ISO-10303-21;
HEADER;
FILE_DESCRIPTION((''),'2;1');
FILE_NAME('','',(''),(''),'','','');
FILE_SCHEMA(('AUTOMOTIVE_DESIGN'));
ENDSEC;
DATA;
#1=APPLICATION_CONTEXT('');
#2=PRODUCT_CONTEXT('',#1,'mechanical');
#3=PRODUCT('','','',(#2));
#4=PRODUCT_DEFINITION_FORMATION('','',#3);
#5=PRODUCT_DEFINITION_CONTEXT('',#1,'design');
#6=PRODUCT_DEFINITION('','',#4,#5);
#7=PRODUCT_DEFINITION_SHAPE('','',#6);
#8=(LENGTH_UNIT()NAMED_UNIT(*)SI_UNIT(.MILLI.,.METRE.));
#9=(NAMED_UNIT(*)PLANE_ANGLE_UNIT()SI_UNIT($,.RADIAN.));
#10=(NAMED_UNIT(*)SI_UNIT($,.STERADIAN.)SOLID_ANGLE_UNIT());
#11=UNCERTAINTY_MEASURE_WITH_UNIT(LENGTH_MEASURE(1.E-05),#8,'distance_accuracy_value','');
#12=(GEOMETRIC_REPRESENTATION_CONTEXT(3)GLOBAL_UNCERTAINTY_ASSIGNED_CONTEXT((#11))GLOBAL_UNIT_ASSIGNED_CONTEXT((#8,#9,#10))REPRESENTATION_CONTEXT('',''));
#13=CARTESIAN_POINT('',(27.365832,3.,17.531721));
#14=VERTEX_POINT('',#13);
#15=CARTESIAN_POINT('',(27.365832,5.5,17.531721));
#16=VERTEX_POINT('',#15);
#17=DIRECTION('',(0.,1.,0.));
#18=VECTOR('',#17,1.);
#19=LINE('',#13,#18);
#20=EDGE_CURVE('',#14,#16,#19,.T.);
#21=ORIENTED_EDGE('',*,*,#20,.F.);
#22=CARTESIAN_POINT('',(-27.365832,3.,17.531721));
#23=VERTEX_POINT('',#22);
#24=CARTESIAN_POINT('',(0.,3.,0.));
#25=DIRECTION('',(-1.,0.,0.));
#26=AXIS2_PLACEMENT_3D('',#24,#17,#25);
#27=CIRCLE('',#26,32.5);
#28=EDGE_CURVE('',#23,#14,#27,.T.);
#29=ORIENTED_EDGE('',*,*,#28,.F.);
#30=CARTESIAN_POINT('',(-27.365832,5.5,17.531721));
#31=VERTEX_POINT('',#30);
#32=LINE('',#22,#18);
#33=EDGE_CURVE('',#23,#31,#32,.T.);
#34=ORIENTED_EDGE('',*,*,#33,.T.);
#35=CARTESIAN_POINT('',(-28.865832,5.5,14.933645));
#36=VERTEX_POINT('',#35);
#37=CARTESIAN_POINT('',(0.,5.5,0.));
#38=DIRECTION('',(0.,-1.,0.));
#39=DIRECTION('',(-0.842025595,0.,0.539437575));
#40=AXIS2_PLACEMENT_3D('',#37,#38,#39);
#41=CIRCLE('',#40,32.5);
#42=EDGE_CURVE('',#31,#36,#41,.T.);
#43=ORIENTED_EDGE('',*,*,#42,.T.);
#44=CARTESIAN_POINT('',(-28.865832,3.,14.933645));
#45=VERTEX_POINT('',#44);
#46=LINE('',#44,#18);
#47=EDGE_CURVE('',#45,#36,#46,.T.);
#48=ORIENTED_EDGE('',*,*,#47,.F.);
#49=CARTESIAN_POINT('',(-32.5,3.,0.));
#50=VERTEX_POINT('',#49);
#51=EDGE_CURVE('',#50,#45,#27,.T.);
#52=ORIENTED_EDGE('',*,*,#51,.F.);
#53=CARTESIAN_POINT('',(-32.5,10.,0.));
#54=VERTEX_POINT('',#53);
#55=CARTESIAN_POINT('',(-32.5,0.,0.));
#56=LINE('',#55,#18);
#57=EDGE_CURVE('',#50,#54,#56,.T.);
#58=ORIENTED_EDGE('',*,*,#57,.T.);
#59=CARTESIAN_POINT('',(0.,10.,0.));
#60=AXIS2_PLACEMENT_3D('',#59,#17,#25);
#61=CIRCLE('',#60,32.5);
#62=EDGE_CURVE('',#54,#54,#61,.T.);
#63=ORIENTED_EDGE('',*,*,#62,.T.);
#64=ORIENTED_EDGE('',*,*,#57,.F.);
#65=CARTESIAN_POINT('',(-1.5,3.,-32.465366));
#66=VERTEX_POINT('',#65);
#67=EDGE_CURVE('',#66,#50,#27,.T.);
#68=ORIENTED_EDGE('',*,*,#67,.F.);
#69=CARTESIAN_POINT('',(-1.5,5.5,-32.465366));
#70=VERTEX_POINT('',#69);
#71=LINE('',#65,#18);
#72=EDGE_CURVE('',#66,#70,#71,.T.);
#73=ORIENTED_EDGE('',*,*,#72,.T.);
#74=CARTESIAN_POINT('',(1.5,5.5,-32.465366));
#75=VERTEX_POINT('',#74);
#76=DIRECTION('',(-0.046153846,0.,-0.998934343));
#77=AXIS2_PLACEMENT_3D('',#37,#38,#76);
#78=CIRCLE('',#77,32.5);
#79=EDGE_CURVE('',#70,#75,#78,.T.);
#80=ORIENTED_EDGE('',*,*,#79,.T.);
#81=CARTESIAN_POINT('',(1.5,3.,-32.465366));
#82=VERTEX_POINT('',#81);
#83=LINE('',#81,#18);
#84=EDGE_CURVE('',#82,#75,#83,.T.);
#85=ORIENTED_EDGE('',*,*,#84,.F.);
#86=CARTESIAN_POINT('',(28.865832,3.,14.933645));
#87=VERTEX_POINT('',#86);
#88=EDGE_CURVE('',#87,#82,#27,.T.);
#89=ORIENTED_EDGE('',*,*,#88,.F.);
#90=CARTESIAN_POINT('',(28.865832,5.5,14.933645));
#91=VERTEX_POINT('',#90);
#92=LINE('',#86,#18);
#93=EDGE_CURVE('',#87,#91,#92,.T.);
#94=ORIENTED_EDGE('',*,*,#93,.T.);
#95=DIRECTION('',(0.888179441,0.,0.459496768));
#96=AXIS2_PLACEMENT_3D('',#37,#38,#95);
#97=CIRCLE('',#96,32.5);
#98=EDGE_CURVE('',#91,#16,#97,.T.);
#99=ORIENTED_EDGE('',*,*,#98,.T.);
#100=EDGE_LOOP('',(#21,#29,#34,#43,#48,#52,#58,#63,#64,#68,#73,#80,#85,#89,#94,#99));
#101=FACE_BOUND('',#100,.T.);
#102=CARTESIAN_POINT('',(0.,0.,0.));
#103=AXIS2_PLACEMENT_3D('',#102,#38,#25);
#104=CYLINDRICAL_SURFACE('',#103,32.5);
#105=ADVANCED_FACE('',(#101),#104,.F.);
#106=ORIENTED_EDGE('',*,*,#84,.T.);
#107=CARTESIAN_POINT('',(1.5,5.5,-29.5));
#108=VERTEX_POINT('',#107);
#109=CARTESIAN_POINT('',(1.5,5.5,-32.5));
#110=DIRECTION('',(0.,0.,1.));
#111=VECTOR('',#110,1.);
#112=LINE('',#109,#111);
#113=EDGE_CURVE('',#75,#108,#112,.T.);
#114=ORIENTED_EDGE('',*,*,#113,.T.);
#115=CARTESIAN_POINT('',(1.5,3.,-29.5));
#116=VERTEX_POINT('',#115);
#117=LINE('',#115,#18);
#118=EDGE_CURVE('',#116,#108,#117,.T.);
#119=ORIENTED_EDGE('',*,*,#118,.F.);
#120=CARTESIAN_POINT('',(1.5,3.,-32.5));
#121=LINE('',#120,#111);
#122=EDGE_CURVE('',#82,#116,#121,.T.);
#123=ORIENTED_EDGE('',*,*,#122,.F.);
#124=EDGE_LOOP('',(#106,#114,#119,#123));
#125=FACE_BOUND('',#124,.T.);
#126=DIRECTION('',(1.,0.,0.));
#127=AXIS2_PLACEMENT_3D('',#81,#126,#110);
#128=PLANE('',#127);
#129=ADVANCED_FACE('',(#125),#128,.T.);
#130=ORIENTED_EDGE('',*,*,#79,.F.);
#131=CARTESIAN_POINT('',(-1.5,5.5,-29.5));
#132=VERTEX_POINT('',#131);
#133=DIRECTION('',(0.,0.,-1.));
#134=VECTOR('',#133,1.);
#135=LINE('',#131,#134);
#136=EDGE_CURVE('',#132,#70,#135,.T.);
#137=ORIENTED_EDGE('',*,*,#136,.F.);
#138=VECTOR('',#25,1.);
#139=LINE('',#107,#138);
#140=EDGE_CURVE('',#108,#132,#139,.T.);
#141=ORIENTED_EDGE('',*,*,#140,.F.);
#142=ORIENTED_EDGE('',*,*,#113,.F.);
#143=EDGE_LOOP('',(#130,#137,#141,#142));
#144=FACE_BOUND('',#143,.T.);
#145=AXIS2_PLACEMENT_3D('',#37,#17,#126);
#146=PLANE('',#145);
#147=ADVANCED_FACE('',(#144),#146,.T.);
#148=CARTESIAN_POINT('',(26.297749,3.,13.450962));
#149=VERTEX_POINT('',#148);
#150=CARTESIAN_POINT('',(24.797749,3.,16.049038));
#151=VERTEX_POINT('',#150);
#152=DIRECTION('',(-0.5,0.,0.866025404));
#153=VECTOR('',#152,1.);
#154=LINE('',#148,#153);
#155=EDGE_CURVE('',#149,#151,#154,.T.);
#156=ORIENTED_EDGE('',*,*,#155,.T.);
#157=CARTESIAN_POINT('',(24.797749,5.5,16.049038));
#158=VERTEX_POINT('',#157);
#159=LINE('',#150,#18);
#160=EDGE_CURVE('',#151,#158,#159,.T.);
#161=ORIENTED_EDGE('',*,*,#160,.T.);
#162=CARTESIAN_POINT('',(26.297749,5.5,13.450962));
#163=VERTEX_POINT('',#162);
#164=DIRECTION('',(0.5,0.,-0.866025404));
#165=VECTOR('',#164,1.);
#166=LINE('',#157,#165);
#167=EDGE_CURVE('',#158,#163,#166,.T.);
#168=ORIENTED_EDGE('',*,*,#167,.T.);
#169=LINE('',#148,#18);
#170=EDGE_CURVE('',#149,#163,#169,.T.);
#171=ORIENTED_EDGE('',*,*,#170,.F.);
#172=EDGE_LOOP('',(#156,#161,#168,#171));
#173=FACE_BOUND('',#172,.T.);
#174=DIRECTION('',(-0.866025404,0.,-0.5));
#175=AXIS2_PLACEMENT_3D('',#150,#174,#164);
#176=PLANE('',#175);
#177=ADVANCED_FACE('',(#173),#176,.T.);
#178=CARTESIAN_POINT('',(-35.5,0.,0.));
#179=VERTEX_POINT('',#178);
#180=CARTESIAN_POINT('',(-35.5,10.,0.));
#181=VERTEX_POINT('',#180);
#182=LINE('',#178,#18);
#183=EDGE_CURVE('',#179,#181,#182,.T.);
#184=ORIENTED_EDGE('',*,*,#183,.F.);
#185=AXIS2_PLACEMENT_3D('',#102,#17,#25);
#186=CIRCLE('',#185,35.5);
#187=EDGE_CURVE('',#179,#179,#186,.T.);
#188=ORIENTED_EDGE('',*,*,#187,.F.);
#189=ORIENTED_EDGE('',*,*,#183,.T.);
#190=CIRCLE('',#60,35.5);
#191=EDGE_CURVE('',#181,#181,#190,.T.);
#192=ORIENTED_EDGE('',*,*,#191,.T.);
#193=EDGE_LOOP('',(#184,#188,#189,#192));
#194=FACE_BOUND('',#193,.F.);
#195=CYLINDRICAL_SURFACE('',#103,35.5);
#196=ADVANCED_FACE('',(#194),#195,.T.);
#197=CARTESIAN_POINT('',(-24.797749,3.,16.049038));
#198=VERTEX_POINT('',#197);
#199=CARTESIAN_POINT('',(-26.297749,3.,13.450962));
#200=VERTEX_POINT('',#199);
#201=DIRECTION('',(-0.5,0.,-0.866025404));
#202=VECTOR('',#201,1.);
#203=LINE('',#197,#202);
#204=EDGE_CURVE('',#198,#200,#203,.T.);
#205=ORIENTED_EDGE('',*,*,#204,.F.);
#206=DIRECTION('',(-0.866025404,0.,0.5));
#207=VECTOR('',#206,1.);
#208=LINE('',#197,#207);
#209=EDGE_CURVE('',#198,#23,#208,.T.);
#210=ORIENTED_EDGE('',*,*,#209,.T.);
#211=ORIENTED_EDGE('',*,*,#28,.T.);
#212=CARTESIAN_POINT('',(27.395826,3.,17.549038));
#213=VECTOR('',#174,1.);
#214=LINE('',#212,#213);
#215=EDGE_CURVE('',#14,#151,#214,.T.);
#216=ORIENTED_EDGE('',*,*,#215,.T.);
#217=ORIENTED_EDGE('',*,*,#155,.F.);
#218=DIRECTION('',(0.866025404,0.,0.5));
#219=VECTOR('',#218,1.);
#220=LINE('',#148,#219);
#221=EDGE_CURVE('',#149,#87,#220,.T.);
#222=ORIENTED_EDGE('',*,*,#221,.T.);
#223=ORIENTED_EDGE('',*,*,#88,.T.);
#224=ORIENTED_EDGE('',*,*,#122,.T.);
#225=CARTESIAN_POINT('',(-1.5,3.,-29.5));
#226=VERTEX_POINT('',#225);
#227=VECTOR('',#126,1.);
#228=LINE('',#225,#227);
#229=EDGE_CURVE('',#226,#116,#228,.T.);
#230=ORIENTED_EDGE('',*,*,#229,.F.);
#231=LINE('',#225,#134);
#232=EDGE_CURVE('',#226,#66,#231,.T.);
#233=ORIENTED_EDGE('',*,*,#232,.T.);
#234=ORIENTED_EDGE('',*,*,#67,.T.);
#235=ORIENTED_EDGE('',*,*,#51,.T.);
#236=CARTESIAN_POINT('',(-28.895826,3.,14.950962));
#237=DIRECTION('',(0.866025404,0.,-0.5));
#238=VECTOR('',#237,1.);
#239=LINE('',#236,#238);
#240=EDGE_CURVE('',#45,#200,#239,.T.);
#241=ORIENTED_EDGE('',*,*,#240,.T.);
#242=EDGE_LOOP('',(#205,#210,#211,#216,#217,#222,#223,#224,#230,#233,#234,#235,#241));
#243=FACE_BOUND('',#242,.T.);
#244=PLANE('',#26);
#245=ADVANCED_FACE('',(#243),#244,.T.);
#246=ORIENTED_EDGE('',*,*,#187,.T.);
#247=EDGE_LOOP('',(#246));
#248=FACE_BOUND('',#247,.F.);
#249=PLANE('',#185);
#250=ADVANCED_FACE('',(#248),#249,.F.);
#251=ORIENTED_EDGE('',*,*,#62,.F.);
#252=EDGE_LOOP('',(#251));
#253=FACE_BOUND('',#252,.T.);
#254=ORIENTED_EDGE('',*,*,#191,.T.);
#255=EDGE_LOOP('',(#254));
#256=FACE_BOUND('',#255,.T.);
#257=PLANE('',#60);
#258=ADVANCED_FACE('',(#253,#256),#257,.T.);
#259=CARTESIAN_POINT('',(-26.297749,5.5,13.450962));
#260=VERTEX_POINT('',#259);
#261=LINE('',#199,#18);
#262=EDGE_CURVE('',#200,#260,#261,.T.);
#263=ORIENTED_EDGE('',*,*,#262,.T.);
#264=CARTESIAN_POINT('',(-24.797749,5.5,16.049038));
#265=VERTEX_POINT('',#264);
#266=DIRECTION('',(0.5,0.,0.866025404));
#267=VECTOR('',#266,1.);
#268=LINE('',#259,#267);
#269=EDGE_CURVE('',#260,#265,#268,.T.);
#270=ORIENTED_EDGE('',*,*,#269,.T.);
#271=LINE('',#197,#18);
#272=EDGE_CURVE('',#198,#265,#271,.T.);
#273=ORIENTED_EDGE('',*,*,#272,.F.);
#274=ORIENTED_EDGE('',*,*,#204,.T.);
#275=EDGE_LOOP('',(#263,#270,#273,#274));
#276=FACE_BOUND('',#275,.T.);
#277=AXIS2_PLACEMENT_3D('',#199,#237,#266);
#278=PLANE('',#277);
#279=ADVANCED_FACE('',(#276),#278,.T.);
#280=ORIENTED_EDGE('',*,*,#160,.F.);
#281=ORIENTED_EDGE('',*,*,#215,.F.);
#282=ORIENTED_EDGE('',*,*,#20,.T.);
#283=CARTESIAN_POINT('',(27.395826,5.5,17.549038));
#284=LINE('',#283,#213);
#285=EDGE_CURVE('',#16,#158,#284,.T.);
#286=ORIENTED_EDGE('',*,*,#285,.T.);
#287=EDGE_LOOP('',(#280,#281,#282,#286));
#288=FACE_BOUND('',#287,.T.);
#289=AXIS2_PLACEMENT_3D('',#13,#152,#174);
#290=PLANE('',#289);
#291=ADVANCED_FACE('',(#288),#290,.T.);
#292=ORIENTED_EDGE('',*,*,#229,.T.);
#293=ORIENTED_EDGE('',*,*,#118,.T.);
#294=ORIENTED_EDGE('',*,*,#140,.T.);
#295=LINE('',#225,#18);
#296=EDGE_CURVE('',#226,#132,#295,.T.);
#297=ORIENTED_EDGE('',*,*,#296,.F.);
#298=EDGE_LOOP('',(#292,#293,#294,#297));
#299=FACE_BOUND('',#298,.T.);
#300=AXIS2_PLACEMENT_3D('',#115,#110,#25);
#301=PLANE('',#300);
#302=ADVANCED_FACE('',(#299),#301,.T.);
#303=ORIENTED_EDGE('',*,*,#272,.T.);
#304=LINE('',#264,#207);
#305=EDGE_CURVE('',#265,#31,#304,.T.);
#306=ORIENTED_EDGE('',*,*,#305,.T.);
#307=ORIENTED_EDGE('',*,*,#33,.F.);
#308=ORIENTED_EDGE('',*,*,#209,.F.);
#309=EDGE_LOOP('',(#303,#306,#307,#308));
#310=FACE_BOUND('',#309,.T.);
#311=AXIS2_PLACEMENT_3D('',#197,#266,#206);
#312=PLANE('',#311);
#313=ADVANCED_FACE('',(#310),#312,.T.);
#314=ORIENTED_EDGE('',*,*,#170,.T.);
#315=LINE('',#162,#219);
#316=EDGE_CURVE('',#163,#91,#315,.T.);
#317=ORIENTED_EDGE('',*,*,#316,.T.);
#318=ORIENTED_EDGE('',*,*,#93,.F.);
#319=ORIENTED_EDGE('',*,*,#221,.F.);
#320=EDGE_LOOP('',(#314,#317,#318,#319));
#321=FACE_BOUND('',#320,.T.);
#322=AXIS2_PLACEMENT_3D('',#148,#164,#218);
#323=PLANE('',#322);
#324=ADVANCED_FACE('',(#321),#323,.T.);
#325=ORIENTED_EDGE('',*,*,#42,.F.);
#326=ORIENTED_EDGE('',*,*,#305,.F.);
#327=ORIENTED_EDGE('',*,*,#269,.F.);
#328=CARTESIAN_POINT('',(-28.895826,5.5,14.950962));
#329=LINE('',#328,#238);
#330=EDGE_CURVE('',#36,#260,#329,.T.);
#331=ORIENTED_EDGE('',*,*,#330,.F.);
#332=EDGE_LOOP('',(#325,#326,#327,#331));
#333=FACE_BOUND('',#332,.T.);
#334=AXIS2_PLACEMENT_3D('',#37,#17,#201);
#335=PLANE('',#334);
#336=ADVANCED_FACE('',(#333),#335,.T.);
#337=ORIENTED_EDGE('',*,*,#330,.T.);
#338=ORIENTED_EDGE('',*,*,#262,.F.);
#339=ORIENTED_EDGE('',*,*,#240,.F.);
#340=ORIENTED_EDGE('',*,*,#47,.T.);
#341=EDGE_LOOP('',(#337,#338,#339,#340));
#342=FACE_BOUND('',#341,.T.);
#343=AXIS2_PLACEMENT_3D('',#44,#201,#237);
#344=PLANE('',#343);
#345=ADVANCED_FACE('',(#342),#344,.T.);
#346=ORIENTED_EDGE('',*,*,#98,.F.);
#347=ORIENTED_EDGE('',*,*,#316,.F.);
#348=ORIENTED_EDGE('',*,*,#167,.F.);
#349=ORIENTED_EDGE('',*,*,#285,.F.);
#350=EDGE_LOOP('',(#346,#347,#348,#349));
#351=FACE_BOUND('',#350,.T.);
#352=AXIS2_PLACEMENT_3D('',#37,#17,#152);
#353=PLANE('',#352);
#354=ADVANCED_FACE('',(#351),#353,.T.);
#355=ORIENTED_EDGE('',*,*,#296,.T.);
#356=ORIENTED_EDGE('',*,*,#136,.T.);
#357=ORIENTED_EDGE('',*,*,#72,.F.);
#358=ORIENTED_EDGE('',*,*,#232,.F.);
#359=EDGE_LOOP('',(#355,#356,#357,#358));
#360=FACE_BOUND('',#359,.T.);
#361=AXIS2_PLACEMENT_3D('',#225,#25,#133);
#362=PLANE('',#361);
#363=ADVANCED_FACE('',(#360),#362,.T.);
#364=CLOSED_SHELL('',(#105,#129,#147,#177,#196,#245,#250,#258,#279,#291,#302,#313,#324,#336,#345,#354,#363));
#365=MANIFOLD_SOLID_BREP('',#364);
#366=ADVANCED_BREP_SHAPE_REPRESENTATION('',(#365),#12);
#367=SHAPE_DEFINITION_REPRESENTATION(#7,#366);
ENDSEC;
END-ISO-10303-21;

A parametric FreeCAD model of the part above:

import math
import FreeCAD as App
import Part
import Sketcher

V = App.Vector
Q = App.Units.Quantity

doc = App.newDocument("Part")
body = doc.addObject("PartDesign::Body", "Body")

sketch1 = body.newObject("Sketcher::SketchObject", "Sketch")
sketch1.AttachmentSupport = (doc.getObject("XZ_Plane"), [""])
sketch1.MapMode = "FlatFace"
sketch1.addGeometry([
    Part.Circle(V(0, 0, 0), V(0, 0, 1), 36),
    Part.Circle(V(0, 0, 0), V(0, 0, 1), 32),
], False)
sketch1.addConstraint([
    Sketcher.Constraint("Coincident", 0, 3, -1, 1),
    Sketcher.Constraint("Coincident", 1, 3, -1, 1),
    Sketcher.Constraint("Diameter", 0, Q("71 mm")),
    Sketcher.Constraint("Diameter", 1, Q("65 mm")),
])
pad1 = body.newObject("PartDesign::Pad", "Pad")
pad1.Profile = sketch1
pad1.Length = 10
pad1.Reversed = True

sketch2 = body.newObject("Sketcher::SketchObject", "Sketch001")
sketch2.AttachmentSupport = (doc.getObject("XZ_Plane"), [""])
sketch2.MapMode = "FlatFace"
sketch2.addGeometry(Part.Circle(V(0, 0, 0), V(0, 0, 1), 32), False)
sketch2.addConstraint([
    Sketcher.Constraint("Coincident", 0, 3, -1, 1),
    Sketcher.Constraint("Diameter", 0, Q("65 mm")),
])
pad2 = body.newObject("PartDesign::Pad", "Pad001")
pad2.Profile = sketch2
pad2.Length = 3
pad2.Reversed = True

sketch3 = body.newObject("Sketcher::SketchObject", "Sketch002")
sketch3.AttachmentSupport = (doc.getObject("XZ_Plane"), [""])
sketch3.MapMode = "FlatFace"
sketch3.AttachmentOffset = App.Placement(V(0, 0, -3), App.Rotation())
sketch3.addGeometry([
    Part.LineSegment(V(1.5, -29.5, 0), V(1.5, -32.5, 0)),
    Part.ArcOfCircle(Part.Circle(V(0, 0, 0), V(0, 0, 1), 32.5), math.radians(-92.65), math.radians(-87.35)),
    Part.LineSegment(V(-1.5, -32.5, 0), V(-1.5, -29.5, 0)),
    Part.LineSegment(V(-1.5, -29.5, 0), V(1.5, -29.5, 0)),
], False)
sketch3.addConstraint([
    Sketcher.Constraint("Coincident", 0, 2, 1, 2),
    Sketcher.Constraint("Coincident", 1, 1, 2, 1),
    Sketcher.Constraint("Coincident", 2, 2, 3, 1),
    Sketcher.Constraint("Coincident", 3, 2, 0, 1),
    Sketcher.Constraint("Vertical", 0),
    Sketcher.Constraint("Vertical", 2),
    Sketcher.Constraint("Horizontal", 3),
    Sketcher.Constraint("Coincident", 1, 3, -1, 1),
    Sketcher.Constraint("Horizontal", 0, 2, 1, 1),
    Sketcher.Constraint("DistanceX", 3, 1, 3, 2, Q("3 mm")),
    Sketcher.Constraint("Radius", 1, Q("32.5 mm")),
    Sketcher.Constraint("DistanceY", 2, 2, -1, 1, Q("29.5 mm")),
])
pad3 = body.newObject("PartDesign::Pad", "Pad002")
pad3.Profile = sketch3
pad3.Length = 2.5
pad3.Reversed = True
doc.recompute()

polarpattern = body.newObject("PartDesign::PolarPattern", "PolarPattern")
polarpattern.Originals = [pad3]
polarpattern.Axis = (doc.getObject("Y_Axis"), [""])
polarpattern.Angle = 360
polarpattern.Occurrences = 3
body.Tip = polarpattern

doc.recompute()
